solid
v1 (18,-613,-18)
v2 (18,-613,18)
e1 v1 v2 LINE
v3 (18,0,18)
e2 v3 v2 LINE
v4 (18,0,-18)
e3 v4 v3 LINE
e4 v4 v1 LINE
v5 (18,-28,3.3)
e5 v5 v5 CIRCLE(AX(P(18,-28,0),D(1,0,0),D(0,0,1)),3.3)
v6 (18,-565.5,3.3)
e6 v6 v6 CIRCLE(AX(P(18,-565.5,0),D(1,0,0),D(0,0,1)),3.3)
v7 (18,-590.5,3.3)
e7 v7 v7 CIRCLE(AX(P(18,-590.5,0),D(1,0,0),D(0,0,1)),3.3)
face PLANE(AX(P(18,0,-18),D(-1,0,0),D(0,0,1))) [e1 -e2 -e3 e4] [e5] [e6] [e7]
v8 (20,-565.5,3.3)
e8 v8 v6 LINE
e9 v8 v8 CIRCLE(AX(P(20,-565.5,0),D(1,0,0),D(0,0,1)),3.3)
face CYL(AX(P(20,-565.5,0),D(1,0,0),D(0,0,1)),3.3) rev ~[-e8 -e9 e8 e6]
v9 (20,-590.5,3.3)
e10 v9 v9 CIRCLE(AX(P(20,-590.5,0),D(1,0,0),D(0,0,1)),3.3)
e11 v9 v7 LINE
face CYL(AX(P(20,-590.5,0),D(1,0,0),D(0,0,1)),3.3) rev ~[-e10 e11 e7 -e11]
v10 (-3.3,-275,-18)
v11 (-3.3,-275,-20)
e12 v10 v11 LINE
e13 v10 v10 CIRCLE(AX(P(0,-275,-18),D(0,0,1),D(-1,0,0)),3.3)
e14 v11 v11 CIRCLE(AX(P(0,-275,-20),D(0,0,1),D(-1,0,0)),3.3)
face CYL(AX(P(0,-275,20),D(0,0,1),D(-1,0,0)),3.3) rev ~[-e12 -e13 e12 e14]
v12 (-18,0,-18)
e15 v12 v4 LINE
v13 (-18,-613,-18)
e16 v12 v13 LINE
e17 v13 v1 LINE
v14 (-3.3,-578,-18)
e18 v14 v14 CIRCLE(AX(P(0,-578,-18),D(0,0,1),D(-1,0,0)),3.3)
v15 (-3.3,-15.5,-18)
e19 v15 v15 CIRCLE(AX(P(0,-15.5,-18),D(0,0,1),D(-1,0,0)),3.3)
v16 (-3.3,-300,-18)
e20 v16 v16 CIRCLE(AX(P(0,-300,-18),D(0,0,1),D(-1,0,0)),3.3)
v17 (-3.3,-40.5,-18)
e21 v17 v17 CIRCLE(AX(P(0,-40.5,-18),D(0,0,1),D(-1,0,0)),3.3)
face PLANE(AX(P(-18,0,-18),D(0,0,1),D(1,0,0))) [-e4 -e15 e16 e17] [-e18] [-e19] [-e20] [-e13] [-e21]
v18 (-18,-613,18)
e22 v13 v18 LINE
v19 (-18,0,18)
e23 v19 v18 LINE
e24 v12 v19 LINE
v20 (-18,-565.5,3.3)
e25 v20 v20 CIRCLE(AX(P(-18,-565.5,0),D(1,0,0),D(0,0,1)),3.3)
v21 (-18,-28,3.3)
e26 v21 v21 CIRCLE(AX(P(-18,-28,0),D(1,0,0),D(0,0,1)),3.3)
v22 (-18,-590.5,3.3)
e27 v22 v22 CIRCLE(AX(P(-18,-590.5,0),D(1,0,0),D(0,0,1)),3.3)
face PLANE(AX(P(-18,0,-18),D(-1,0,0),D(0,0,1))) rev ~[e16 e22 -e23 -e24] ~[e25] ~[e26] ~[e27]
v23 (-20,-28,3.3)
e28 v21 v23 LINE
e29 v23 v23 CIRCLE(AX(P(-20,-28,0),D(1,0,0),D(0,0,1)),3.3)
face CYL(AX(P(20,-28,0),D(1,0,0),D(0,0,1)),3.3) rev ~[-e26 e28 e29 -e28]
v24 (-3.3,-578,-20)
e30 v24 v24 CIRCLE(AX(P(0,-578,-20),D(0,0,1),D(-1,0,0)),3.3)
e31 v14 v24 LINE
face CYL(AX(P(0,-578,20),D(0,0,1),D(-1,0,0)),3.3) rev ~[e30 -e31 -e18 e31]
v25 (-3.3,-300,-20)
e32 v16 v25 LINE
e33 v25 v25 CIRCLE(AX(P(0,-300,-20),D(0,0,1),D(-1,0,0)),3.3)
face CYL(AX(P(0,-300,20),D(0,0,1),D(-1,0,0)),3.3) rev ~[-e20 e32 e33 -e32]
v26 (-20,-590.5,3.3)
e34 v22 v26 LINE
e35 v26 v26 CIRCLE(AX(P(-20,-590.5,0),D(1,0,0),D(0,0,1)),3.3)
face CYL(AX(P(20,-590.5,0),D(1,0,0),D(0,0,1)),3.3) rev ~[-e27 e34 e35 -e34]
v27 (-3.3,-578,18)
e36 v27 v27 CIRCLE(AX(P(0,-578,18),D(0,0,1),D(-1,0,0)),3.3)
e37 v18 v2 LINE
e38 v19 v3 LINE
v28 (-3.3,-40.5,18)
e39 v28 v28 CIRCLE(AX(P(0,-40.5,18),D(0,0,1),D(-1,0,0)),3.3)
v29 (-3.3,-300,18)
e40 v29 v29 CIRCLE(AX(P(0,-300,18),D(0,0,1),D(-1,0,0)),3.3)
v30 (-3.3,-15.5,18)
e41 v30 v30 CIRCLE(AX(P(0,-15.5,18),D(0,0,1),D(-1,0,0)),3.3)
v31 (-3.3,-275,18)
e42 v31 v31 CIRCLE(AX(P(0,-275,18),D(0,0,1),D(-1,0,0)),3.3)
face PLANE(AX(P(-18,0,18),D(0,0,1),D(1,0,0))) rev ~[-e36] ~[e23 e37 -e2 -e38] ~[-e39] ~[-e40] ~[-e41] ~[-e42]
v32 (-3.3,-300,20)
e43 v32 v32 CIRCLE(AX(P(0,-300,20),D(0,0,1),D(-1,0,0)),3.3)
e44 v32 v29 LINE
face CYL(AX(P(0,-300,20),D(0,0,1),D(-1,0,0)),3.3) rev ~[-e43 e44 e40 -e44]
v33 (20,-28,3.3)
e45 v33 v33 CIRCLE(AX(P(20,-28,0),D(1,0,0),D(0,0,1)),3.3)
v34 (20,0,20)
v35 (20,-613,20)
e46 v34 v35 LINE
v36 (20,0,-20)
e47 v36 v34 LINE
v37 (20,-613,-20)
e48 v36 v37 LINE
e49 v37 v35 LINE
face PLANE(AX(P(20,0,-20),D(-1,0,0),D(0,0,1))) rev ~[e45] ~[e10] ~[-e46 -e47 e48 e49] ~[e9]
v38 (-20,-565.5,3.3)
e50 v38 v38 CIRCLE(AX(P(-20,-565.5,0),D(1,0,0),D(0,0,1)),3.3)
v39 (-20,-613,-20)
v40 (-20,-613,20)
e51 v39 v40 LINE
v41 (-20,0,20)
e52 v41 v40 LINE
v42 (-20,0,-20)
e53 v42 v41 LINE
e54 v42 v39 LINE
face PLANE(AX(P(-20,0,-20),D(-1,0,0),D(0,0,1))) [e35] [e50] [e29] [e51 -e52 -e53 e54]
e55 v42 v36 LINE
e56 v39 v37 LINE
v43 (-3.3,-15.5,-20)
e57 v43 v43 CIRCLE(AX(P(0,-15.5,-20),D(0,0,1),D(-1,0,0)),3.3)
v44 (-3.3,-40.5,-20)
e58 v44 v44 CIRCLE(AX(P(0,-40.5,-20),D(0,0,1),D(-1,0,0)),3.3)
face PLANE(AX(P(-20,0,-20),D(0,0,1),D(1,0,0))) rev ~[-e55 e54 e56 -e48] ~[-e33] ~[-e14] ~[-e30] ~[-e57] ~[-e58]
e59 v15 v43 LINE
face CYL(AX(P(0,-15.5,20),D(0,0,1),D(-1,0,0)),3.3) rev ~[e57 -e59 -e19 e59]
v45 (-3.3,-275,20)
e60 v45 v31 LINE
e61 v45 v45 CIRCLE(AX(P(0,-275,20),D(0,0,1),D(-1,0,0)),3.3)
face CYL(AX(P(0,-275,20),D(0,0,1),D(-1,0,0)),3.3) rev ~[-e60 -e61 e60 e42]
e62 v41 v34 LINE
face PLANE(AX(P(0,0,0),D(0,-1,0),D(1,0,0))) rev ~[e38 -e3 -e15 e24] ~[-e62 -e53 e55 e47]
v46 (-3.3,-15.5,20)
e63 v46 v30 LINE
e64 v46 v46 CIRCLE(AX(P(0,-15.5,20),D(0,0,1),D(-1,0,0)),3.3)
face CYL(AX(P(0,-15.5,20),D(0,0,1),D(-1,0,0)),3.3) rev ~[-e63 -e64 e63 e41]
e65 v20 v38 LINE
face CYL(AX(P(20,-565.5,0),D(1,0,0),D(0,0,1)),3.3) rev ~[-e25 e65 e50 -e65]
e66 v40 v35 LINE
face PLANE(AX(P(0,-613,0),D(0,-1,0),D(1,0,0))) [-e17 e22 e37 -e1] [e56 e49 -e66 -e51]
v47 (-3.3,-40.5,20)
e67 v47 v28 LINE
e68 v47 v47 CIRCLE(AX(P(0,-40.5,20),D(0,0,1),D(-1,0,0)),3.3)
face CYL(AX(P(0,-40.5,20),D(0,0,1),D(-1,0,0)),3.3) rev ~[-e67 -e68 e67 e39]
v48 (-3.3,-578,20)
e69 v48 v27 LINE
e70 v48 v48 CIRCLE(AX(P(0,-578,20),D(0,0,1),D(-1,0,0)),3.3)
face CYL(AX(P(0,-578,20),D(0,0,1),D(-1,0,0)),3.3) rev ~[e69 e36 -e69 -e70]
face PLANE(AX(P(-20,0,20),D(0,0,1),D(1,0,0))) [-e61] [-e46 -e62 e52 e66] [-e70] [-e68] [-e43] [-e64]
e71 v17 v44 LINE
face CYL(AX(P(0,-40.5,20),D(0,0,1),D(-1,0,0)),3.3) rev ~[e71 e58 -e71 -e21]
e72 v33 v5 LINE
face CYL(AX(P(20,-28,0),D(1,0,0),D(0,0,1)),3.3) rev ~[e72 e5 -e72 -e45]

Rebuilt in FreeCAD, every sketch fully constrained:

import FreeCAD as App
import Part
import Sketcher
from FreeCAD import Vector


def add_polygon(sketch, points):
    """Adds a closed chain of lines whose ends are joined by coincident constraints."""
    first, n = sketch.GeometryCount, len(points)
    for a, b in zip(points, points[1:] + points[:1]):
        sketch.addGeometry(Part.LineSegment(App.Vector(*a, 0), App.Vector(*b, 0)), False)
    for i in range(n):
        sketch.addConstraint(Sketcher.Constraint("Coincident", first + i, 2, first + (i + 1) % n, 1))

doc = App.newDocument("Part")
body = doc.addObject("PartDesign::Body", "Body")

# Sketch on XZ plane
sketch1 = body.newObject("Sketcher::SketchObject", "Sketch")
sketch1.AttachmentSupport = (doc.getObject("XZ_Plane"), [""])
sketch1.MapMode = "FlatFace"
add_polygon(sketch1, [(-20, 20), (-20, -20), (20, -20), (20, 20)])  # lines 0-3
add_polygon(sketch1, [(18, -18), (-18, -18), (-18, 18), (18, 18)])  # lines 4-7
sketch1.addConstraint([
    Sketcher.Constraint("Vertical", 0),
    Sketcher.Constraint("Horizontal", 1),
    Sketcher.Constraint("Vertical", 2),
    Sketcher.Constraint("Horizontal", 3),
    Sketcher.Constraint("Horizontal", 4),
    Sketcher.Constraint("Vertical", 5),
    Sketcher.Constraint("Horizontal", 6),
    Sketcher.Constraint("Vertical", 7),
    Sketcher.Constraint("Symmetric", 0, 2, 2, 2, -1, 1),
    Sketcher.Constraint("Symmetric", 4, 2, 6, 2, -1, 1),
    Sketcher.Constraint("Equal", 3, 0),
    Sketcher.Constraint("Equal", 6, 5),
    Sketcher.Constraint("DistanceX", 1, 1, 1, 2, 40.0),
    Sketcher.Constraint("DistanceX", 4, 2, 4, 1, 36.0),
])
pad1 = body.newObject("PartDesign::Pad", "Pad")
pad1.Profile = sketch1
pad1.Length = 613

# Sketch on YZ plane
sketch2 = body.newObject("Sketcher::SketchObject", "Sketch001")
sketch2.AttachmentSupport = (doc.getObject("YZ_Plane"), [""])
sketch2.MapMode = "FlatFace"
sketch2.AttachmentOffset = App.Placement(Vector(0, 0, 20), App.Rotation())
sketch2.addGeometry([
    Part.Circle(Vector(-28, 0, 0), Vector(0, 0, 1), 3.3),
    Part.Circle(Vector(-565.5, 0, 0), Vector(0, 0, 1), 3.3),
    Part.Circle(Vector(-590.5, 0, 0), Vector(0, 0, 1), 3.3),
], False)
sketch2.addConstraint([
    Sketcher.Constraint("Equal", 0, 1),
    Sketcher.Constraint("Equal", 1, 2),
    Sketcher.Constraint("PointOnObject", 0, 3, -1),
    Sketcher.Constraint("PointOnObject", 1, 3, -1),
    Sketcher.Constraint("PointOnObject", 2, 3, -1),
    Sketcher.Constraint("Diameter", 0, 6.6),
    Sketcher.Constraint("DistanceX", 0, 3, -1, 1, 28.0),
    Sketcher.Constraint("DistanceX", 2, 3, 1, 3, 25.0),
    Sketcher.Constraint("DistanceX", 1, 3, -1, 1, 565.5),
])
pocket1 = body.newObject("PartDesign::Pocket", "Pocket")
pocket1.Profile = sketch2
pocket1.Type = "ThroughAll"

# Sketch on XY plane
sketch3 = body.newObject("Sketcher::SketchObject", "Sketch002")
sketch3.AttachmentSupport = (doc.getObject("XY_Plane"), [""])
sketch3.MapMode = "FlatFace"
sketch3.AttachmentOffset = App.Placement(Vector(0, 0, 20), App.Rotation())
sketch3.addGeometry([
    Part.Circle(Vector(0, -15.5, 0), Vector(0, 0, 1), 3.3),  # 0
    Part.Circle(Vector(0, -300, 0), Vector(0, 0, 1), 3.3),  # 1
    Part.Circle(Vector(0, -275, 0), Vector(0, 0, 1), 3.3),  # 2
    Part.Circle(Vector(0, -578, 0), Vector(0, 0, 1), 3.3),  # 3
    Part.Circle(Vector(0, -40.5, 0), Vector(0, 0, 1), 3.3),  # 4
], False)
sketch3.addConstraint([
    Sketcher.Constraint("Equal", 0, 1),
    Sketcher.Constraint("Equal", 1, 2),
    Sketcher.Constraint("Equal", 2, 3),
    Sketcher.Constraint("Equal", 3, 4),
    Sketcher.Constraint("PointOnObject", 0, 3, -2),
    Sketcher.Constraint("PointOnObject", 1, 3, -2),
    Sketcher.Constraint("PointOnObject", 2, 3, -2),
    Sketcher.Constraint("PointOnObject", 3, 3, -2),
    Sketcher.Constraint("PointOnObject", 4, 3, -2),
    Sketcher.Constraint("Diameter", 0, 6.6),
    Sketcher.Constraint("DistanceY", 1, 3, -1, 1, 300.0),
    Sketcher.Constraint("DistanceY", 2, 3, -1, 1, 275.0),
    Sketcher.Constraint("DistanceY", 3, 3, -1, 1, 578.0),
    Sketcher.Constraint("DistanceY", 4, 3, 0, 3, 25.0),
    Sketcher.Constraint("DistanceY", 0, 3, -1, 1, 15.5),
])
pocket2 = body.newObject("PartDesign::Pocket", "Pocket001")
pocket2.Profile = sketch3
pocket2.Type = "ThroughAll"

doc.recompute()
